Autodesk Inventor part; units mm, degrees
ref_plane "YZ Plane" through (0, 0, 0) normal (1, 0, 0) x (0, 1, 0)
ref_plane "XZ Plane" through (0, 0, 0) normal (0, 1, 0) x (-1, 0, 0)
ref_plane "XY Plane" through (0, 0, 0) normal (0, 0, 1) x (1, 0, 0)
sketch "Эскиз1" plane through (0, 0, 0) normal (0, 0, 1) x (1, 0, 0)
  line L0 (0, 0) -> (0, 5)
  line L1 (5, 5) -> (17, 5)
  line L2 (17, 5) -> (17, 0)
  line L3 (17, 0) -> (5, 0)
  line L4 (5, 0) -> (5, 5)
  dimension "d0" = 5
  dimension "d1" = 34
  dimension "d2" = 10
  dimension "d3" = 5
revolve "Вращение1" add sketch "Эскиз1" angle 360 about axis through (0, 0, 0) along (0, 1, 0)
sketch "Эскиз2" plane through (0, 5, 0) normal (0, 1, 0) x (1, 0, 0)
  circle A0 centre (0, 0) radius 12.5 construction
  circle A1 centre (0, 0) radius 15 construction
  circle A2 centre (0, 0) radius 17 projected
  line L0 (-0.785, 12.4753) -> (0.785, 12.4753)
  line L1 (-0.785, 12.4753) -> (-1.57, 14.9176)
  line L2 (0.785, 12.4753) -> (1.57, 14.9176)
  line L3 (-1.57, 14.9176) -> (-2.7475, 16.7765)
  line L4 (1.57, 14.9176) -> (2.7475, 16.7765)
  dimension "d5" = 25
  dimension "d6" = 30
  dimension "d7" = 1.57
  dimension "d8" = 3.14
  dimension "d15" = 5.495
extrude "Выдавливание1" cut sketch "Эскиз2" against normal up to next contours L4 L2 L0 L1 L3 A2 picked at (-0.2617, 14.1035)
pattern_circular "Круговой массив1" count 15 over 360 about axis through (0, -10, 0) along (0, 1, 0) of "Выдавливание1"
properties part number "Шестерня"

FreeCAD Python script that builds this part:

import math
import FreeCAD as App
import Part
import Sketcher
Q = App.Units.Quantity


def add_polygon(sketch, points):
    """Adds a closed chain of lines whose ends are joined by coincident constraints."""
    first, n = sketch.GeometryCount, len(points)
    for a, b in zip(points, points[1:] + points[:1]):
        sketch.addGeometry(Part.LineSegment(App.Vector(*a, 0), App.Vector(*b, 0)), False)
    for i in range(n):
        sketch.addConstraint(Sketcher.Constraint("Coincident", first + i, 2, first + (i + 1) % n, 1))

doc = App.newDocument("Part")
body = doc.addObject("PartDesign::Body", "Body")

# Sketch on XY plane
sketch1 = body.newObject("Sketcher::SketchObject", "Sketch")
sketch1.AttachmentSupport = (doc.getObject("XY_Plane"), [""])
sketch1.MapMode = "FlatFace"
add_polygon(sketch1, [(17, 5), (5, 5), (5, 0), (17, 0)])  # lines 0-3
sketch1.addConstraint([
    Sketcher.Constraint("Horizontal", 0),
    Sketcher.Constraint("Vertical", 1),
    Sketcher.Constraint("Horizontal", 2),
    Sketcher.Constraint("Vertical", 3),
    Sketcher.Constraint("PointOnObject", 1, 2, -1),
    Sketcher.Constraint("DistanceY", 1, 2, 1, 1, Q("5 mm")),
    Sketcher.Constraint("DistanceX", -1, 1, 0, 2, Q("5 mm")),
    Sketcher.Constraint("DistanceX", 0, 2, 0, 1, Q("12 mm")),
])
revolution = body.newObject("PartDesign::Revolution", "Revolution")
revolution.Profile = sketch1
revolution.ReferenceAxis = (sketch1, ["V_Axis"])
revolution.Angle = 360

# Sketch on XZ plane
sketch2 = body.newObject("Sketcher::SketchObject", "Sketch001")
sketch2.AttachmentSupport = (doc.getObject("XZ_Plane"), [""])
sketch2.MapMode = "FlatFace"
sketch2.AttachmentOffset = App.Placement(App.Vector(0, 0, -5), App.Rotation())
sketch2.addGeometry([
    Part.LineSegment(App.Vector(1.57, -14.9176, 0), App.Vector(2.7475, -16.7765, 0)),  # 0
    Part.ArcOfCircle(Part.Circle(App.Vector(0, 0, 0), App.Vector(0, 0, 1), 17), math.radians(-99.300807), math.radians(-80.699193)),  # 1
    Part.LineSegment(App.Vector(-2.7475, -16.7765, 0), App.Vector(-1.57, -14.9176, 0)),  # 2
    Part.LineSegment(App.Vector(-1.57, -14.9176, 0), App.Vector(-0.785, -12.4753, 0)),  # 3
    Part.LineSegment(App.Vector(-0.785, -12.4753, 0), App.Vector(0.785, -12.4753, 0)),  # 4
    Part.LineSegment(App.Vector(0.785, -12.4753, 0), App.Vector(1.57, -14.9176, 0)),  # 5
], False)
sketch2.addConstraint([
    Sketcher.Constraint("Coincident", 0, 2, 1, 2),
    Sketcher.Constraint("Coincident", 1, 1, 2, 1),
    Sketcher.Constraint("Coincident", 2, 2, 3, 1),
    Sketcher.Constraint("Coincident", 3, 2, 4, 1),
    Sketcher.Constraint("Coincident", 4, 2, 5, 1),
    Sketcher.Constraint("Coincident", 5, 2, 0, 1),
    Sketcher.Constraint("Horizontal", 4),
    Sketcher.Constraint("Coincident", 1, 3, -1, 1),
    Sketcher.Constraint("Symmetric", 2, 2, 5, 2, -2),
    Sketcher.Constraint("Horizontal", 0, 2, 1, 1),
    Sketcher.Constraint("Equal", 3, 5),
    Sketcher.Constraint("Radius", 1, Q("17 mm")),
    Sketcher.Constraint("DistanceX", 4, 1, 4, 2, Q("1.57 mm")),
    Sketcher.Constraint("DistanceX", 2, 2, -1, 1, Q("1.57 mm")),
    Sketcher.Constraint("DistanceX", 1, 1, 0, 2, Q("5.495 mm")),
    Sketcher.Constraint("DistanceY", 1, 1, 2, 2, Q("1.859 mm")),
    Sketcher.Constraint("Distance", 3, Q("2.5654 mm")),
])
pocket1 = body.newObject("PartDesign::Pocket", "Pocket")
pocket1.Profile = sketch2
pocket1.Type = "UpToFirst"
pocket1.Reversed = True
doc.recompute()

polarpattern = body.newObject("PartDesign::PolarPattern", "PolarPattern")
polarpattern.Originals = [pocket1]
polarpattern.Axis = (doc.getObject("Y_Axis"), [""])
polarpattern.Angle = 360
polarpattern.Occurrences = 15
body.Tip = polarpattern

doc.recompute()
